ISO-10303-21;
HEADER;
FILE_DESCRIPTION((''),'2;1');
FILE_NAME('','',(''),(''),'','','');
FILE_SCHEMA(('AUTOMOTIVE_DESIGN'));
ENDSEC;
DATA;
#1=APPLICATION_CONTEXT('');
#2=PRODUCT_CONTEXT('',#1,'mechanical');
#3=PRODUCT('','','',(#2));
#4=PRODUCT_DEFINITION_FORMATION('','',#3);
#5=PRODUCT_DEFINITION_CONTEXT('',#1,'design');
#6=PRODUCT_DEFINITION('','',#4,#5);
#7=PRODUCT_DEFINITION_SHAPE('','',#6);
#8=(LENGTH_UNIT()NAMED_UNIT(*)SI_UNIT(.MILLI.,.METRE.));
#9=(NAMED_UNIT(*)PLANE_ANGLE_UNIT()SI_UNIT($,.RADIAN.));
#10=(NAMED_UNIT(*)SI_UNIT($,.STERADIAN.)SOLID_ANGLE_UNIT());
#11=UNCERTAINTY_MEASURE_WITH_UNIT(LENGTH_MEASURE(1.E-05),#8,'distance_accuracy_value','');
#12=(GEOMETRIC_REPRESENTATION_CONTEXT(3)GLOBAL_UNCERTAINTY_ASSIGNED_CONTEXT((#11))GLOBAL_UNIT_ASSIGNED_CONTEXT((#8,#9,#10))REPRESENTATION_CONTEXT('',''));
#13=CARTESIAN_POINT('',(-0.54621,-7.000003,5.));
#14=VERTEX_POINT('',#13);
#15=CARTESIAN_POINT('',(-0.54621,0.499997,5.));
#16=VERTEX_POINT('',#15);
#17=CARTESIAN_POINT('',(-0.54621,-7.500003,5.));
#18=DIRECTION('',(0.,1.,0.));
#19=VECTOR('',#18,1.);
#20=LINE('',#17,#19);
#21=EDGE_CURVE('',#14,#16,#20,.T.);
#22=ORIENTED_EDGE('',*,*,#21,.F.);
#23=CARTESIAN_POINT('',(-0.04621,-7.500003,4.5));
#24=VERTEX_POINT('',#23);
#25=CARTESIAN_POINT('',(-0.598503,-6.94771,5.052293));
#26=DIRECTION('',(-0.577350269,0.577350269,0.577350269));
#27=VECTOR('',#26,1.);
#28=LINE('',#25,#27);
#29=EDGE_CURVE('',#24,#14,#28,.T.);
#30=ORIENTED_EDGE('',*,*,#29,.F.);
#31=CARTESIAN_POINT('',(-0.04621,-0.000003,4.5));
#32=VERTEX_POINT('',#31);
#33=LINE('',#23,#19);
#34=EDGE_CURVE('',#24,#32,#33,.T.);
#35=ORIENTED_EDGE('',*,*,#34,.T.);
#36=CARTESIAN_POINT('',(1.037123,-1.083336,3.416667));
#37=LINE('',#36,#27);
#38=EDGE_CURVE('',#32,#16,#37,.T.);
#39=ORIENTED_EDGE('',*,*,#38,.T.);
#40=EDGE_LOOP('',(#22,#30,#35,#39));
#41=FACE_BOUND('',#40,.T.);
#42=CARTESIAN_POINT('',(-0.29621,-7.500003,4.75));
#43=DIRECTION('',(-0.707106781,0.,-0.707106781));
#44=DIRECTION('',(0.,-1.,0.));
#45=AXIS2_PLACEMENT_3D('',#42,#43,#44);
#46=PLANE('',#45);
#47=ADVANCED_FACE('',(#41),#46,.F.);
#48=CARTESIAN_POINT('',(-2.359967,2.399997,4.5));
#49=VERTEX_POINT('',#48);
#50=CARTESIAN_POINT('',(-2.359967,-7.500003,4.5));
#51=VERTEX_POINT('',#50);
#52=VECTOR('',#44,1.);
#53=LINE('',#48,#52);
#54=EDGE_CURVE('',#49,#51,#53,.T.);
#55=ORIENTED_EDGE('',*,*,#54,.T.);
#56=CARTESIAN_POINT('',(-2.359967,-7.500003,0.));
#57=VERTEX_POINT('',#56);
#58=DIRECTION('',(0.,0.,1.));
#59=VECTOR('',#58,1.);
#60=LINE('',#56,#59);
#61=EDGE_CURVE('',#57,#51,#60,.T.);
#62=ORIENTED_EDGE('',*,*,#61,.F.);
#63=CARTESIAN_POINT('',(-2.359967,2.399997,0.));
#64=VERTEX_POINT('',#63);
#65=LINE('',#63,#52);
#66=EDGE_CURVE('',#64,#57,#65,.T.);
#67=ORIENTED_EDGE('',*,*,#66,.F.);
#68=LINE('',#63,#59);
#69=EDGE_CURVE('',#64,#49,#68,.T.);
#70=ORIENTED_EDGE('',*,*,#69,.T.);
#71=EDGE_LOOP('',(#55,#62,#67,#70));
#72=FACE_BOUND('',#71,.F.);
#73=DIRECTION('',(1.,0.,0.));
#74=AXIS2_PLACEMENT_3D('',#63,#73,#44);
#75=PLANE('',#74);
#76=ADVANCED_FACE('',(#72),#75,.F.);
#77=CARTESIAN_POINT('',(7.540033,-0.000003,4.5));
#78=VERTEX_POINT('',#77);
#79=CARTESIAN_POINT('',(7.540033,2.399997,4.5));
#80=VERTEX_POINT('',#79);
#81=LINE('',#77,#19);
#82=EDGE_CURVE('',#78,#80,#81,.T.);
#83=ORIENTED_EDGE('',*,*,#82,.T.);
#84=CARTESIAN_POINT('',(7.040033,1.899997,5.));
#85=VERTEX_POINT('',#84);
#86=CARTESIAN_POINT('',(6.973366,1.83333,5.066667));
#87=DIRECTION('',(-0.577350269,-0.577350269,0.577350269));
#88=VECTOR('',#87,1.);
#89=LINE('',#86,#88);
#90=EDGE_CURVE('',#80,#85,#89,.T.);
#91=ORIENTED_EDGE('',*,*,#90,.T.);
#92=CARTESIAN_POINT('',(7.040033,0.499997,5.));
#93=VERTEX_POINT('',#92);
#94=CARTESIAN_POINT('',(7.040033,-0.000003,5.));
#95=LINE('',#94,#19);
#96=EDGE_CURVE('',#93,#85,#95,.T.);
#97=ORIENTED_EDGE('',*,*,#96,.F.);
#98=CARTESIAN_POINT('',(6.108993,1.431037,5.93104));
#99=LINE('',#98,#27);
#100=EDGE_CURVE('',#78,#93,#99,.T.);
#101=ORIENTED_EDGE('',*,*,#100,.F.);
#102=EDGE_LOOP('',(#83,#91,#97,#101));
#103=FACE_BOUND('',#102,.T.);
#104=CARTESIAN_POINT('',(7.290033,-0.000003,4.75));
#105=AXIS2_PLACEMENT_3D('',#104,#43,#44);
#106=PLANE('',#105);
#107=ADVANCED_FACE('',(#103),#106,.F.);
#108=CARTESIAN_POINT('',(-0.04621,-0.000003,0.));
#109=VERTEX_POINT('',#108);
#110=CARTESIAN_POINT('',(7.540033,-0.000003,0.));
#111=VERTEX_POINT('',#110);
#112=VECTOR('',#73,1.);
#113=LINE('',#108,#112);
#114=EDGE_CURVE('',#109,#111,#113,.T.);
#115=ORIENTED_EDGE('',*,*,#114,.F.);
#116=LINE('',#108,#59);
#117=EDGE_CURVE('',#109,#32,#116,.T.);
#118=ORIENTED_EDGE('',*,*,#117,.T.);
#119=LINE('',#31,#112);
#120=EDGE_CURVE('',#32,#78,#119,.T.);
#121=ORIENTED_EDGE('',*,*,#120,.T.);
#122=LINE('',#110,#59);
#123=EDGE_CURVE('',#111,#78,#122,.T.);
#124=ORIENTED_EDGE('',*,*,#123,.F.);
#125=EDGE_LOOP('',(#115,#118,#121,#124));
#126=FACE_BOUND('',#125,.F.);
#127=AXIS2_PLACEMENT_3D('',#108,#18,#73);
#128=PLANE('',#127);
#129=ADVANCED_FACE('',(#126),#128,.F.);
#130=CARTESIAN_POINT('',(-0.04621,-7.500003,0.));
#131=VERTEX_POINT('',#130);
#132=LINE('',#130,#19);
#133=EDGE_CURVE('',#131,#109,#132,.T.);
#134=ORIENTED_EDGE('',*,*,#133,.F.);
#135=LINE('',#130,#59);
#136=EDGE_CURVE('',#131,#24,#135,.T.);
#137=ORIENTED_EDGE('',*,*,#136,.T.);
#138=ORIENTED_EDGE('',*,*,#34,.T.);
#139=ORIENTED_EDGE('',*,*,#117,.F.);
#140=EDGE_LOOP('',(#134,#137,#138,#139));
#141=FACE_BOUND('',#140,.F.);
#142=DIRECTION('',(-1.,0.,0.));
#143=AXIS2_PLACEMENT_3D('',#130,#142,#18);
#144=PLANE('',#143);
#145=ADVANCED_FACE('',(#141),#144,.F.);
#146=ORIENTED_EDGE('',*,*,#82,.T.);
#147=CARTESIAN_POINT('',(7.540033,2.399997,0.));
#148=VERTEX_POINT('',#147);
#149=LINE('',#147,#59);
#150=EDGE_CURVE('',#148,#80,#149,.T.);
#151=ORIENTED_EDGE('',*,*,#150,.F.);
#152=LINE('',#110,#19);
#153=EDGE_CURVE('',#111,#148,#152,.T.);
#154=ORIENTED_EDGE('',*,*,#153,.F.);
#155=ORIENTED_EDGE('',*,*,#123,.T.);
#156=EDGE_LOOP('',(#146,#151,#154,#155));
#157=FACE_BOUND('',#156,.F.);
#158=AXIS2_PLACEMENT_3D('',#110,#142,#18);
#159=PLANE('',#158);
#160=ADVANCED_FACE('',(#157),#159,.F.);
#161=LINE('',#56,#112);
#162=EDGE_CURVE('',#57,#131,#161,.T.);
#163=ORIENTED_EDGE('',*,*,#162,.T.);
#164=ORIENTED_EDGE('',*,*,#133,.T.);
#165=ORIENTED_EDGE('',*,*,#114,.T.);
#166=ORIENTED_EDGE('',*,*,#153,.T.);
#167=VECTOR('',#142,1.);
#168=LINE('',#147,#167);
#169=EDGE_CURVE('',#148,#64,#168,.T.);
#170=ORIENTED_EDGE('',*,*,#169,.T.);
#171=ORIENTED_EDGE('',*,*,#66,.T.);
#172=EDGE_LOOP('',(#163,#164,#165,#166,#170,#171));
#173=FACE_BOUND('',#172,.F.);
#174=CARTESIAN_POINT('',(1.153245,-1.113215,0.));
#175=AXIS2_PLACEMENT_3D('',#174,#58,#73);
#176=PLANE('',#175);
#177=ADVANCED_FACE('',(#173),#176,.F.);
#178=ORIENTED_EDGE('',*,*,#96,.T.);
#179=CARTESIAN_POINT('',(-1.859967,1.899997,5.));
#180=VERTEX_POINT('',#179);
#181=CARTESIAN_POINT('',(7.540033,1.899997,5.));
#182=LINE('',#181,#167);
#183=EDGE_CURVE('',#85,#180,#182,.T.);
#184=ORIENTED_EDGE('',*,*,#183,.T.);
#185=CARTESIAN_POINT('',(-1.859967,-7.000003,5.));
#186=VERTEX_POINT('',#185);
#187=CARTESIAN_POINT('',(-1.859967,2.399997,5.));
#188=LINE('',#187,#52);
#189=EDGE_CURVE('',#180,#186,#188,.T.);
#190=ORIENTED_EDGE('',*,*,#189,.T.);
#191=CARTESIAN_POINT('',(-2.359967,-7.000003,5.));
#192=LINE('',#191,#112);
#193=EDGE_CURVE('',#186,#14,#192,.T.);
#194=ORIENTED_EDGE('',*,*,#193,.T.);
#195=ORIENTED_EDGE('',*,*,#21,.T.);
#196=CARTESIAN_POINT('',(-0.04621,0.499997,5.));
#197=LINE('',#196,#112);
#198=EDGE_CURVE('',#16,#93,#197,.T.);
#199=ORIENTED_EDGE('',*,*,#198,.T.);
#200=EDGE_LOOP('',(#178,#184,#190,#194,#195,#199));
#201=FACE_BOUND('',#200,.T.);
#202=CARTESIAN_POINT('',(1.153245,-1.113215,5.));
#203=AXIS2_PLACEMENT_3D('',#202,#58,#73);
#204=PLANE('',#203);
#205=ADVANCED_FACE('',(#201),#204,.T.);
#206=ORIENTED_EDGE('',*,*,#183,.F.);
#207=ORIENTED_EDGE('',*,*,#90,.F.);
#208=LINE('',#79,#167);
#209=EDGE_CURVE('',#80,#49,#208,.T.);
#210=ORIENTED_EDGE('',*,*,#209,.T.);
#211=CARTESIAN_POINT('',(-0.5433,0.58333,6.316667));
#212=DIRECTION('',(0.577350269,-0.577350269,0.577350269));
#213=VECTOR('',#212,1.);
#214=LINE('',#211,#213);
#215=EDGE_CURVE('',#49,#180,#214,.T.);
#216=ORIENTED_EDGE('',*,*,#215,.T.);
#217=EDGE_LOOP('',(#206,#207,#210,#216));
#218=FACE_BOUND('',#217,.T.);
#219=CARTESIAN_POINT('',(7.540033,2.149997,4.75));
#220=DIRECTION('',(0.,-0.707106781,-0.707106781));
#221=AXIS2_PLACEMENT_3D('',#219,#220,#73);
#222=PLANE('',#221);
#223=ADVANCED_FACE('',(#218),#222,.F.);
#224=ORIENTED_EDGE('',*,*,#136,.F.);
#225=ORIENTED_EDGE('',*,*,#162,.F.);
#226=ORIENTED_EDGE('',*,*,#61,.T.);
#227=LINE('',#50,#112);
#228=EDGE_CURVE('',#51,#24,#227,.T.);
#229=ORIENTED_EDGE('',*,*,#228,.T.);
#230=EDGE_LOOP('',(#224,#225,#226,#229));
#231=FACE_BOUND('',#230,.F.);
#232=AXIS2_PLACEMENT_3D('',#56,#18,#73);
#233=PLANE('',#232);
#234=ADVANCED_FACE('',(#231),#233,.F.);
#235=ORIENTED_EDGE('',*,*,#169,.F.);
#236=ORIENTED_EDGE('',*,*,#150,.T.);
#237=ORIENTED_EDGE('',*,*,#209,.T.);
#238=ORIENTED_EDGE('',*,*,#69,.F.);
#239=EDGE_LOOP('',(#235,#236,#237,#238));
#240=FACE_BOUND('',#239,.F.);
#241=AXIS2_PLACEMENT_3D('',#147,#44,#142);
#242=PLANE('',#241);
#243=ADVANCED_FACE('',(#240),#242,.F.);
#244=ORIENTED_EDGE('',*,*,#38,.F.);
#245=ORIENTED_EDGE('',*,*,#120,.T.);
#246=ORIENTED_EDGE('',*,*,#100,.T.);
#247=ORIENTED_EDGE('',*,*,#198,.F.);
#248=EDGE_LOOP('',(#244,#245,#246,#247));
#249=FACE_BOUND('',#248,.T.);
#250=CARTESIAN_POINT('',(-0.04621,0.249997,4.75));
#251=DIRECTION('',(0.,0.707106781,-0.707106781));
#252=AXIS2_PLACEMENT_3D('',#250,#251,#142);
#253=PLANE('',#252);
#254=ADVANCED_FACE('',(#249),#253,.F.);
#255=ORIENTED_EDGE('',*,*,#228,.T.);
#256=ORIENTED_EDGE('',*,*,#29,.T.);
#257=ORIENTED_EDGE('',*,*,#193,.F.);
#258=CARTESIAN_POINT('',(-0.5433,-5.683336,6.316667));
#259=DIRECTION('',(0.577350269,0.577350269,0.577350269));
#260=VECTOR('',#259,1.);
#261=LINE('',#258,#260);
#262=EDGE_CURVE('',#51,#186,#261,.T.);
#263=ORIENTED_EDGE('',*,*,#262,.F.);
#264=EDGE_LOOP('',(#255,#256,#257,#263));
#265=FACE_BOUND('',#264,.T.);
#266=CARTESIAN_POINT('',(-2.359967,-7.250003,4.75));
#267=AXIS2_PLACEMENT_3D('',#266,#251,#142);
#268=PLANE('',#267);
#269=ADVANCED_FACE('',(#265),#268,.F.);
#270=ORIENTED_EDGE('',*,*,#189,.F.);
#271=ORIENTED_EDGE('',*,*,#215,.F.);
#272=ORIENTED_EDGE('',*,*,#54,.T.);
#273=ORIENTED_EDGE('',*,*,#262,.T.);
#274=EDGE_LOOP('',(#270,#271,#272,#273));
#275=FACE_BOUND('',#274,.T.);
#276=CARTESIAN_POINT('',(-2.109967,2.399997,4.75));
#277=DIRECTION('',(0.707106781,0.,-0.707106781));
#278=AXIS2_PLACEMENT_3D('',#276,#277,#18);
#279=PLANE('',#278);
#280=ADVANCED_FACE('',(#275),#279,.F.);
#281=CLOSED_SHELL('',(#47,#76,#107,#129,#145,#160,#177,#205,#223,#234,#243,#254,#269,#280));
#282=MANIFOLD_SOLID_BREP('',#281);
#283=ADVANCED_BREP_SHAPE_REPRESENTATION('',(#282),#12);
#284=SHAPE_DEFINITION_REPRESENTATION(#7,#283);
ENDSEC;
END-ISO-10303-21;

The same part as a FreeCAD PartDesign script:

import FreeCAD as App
import Part
import Sketcher
Q = App.Units.Quantity


def edges_at(feature, points):
    """Names of the edges that pass closest to the given points."""
    edges = feature.Shape.Edges
    near = lambda p: min(range(len(edges)), key=lambda i: edges[i].distToShape(Part.Vertex(*p))[0])
    return sorted({f"Edge{near(p) + 1}" for p in points})


def add_polygon(sketch, points):
    """Adds a closed chain of lines whose ends are joined by coincident constraints."""
    first, n = sketch.GeometryCount, len(points)
    for a, b in zip(points, points[1:] + points[:1]):
        sketch.addGeometry(Part.LineSegment(App.Vector(*a, 0), App.Vector(*b, 0)), False)
    for i in range(n):
        sketch.addConstraint(Sketcher.Constraint("Coincident", first + i, 2, first + (i + 1) % n, 1))

doc = App.newDocument("Part")
body = doc.addObject("PartDesign::Body", "Body")

# Sketch on XY plane
sketch1 = body.newObject("Sketcher::SketchObject", "Sketch")
sketch1.AttachmentSupport = (doc.getObject("XY_Plane"), [""])
sketch1.MapMode = "FlatFace"
add_polygon(sketch1, [(7.5, 2.4), (-2.4, 2.4), (-2.4, -7.5), (0, -7.5), (0, 0), (7.5, 0)])  # lines 0-5
sketch1.addConstraint(Sketcher.Constraint("Horizontal", 0))
sketch1.addConstraint(Sketcher.Constraint("Vertical", 1))
sketch1.addConstraint(Sketcher.Constraint("Horizontal", 2))
sketch1.addConstraint(Sketcher.Constraint("Vertical", 3))
sketch1.addConstraint(Sketcher.Constraint("Horizontal", 4))
sketch1.addConstraint(Sketcher.Constraint("Vertical", 5))
sketch1.addConstraint(Sketcher.Constraint("Equal", 0, 1))
sketch1.addConstraint(Sketcher.Constraint("DistanceX", 0, 2, 0, 1, Q("9.9 mm")))
sketch1.addConstraint(Sketcher.Constraint("DistanceY", 3, 1, 3, 2, Q("7.5 mm")))
sketch1.addConstraint(Sketcher.Constraint("DistanceX", 2, 1, 2, 2, Q("2.313757 mm")))
sketch1.addConstraint(Sketcher.Constraint("DistanceX", 2, 2, -1, 1, Q("0.04621 mm")))
sketch1.addConstraint(Sketcher.Constraint("DistanceY", -1, 1, 0, 2, Q("2.399997 mm")))
pad1 = body.newObject("PartDesign::Pad", "Pad")
pad1.Profile = sketch1
pad1.Length = 5
doc.recompute()

chamfer = body.newObject("PartDesign::Chamfer", "Chamfer")
chamfer.Base = (pad1, edges_at(pad1, [
    (7.54, 1.2, 5),
    (2.59, 2.4, 5),
    (-2.36, -2.55, 5),
    (-1.203, -7.5, 5),
    (-0.046, -3.75, 5),
    (3.747, 0, 5),
]))
chamfer.Size = 0.5

doc.recompute()
